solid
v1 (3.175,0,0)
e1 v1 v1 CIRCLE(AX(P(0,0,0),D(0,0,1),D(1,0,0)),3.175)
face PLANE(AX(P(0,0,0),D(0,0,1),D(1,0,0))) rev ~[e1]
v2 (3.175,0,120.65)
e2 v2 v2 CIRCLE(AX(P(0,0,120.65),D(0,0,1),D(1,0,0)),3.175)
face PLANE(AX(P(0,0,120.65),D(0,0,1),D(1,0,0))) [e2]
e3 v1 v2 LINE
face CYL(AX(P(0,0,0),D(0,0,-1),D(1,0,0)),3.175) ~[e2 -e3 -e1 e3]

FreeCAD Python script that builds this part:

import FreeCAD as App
import Part
import Sketcher
Q = App.Units.Quantity

doc = App.newDocument("Part")
body = doc.addObject("PartDesign::Body", "Body")

sketch1 = body.newObject("Sketcher::SketchObject", "Sketch")
sketch1.AttachmentSupport = (doc.getObject("XY_Plane"), [""])
sketch1.MapMode = "FlatFace"
sketch1.addGeometry(Part.Circle(App.Vector(0, 0, 0), App.Vector(0, 0, 1), 3.2), False)
sketch1.addConstraint(Sketcher.Constraint("Coincident", 0, 3, -1, 1))
sketch1.addConstraint(Sketcher.Constraint("Diameter", 0, Q("0.25 in")))
pad1 = body.newObject("PartDesign::Pad", "Pad")
pad1.Profile = sketch1
pad1.Length = Q("4.75 in")

doc.recompute()
